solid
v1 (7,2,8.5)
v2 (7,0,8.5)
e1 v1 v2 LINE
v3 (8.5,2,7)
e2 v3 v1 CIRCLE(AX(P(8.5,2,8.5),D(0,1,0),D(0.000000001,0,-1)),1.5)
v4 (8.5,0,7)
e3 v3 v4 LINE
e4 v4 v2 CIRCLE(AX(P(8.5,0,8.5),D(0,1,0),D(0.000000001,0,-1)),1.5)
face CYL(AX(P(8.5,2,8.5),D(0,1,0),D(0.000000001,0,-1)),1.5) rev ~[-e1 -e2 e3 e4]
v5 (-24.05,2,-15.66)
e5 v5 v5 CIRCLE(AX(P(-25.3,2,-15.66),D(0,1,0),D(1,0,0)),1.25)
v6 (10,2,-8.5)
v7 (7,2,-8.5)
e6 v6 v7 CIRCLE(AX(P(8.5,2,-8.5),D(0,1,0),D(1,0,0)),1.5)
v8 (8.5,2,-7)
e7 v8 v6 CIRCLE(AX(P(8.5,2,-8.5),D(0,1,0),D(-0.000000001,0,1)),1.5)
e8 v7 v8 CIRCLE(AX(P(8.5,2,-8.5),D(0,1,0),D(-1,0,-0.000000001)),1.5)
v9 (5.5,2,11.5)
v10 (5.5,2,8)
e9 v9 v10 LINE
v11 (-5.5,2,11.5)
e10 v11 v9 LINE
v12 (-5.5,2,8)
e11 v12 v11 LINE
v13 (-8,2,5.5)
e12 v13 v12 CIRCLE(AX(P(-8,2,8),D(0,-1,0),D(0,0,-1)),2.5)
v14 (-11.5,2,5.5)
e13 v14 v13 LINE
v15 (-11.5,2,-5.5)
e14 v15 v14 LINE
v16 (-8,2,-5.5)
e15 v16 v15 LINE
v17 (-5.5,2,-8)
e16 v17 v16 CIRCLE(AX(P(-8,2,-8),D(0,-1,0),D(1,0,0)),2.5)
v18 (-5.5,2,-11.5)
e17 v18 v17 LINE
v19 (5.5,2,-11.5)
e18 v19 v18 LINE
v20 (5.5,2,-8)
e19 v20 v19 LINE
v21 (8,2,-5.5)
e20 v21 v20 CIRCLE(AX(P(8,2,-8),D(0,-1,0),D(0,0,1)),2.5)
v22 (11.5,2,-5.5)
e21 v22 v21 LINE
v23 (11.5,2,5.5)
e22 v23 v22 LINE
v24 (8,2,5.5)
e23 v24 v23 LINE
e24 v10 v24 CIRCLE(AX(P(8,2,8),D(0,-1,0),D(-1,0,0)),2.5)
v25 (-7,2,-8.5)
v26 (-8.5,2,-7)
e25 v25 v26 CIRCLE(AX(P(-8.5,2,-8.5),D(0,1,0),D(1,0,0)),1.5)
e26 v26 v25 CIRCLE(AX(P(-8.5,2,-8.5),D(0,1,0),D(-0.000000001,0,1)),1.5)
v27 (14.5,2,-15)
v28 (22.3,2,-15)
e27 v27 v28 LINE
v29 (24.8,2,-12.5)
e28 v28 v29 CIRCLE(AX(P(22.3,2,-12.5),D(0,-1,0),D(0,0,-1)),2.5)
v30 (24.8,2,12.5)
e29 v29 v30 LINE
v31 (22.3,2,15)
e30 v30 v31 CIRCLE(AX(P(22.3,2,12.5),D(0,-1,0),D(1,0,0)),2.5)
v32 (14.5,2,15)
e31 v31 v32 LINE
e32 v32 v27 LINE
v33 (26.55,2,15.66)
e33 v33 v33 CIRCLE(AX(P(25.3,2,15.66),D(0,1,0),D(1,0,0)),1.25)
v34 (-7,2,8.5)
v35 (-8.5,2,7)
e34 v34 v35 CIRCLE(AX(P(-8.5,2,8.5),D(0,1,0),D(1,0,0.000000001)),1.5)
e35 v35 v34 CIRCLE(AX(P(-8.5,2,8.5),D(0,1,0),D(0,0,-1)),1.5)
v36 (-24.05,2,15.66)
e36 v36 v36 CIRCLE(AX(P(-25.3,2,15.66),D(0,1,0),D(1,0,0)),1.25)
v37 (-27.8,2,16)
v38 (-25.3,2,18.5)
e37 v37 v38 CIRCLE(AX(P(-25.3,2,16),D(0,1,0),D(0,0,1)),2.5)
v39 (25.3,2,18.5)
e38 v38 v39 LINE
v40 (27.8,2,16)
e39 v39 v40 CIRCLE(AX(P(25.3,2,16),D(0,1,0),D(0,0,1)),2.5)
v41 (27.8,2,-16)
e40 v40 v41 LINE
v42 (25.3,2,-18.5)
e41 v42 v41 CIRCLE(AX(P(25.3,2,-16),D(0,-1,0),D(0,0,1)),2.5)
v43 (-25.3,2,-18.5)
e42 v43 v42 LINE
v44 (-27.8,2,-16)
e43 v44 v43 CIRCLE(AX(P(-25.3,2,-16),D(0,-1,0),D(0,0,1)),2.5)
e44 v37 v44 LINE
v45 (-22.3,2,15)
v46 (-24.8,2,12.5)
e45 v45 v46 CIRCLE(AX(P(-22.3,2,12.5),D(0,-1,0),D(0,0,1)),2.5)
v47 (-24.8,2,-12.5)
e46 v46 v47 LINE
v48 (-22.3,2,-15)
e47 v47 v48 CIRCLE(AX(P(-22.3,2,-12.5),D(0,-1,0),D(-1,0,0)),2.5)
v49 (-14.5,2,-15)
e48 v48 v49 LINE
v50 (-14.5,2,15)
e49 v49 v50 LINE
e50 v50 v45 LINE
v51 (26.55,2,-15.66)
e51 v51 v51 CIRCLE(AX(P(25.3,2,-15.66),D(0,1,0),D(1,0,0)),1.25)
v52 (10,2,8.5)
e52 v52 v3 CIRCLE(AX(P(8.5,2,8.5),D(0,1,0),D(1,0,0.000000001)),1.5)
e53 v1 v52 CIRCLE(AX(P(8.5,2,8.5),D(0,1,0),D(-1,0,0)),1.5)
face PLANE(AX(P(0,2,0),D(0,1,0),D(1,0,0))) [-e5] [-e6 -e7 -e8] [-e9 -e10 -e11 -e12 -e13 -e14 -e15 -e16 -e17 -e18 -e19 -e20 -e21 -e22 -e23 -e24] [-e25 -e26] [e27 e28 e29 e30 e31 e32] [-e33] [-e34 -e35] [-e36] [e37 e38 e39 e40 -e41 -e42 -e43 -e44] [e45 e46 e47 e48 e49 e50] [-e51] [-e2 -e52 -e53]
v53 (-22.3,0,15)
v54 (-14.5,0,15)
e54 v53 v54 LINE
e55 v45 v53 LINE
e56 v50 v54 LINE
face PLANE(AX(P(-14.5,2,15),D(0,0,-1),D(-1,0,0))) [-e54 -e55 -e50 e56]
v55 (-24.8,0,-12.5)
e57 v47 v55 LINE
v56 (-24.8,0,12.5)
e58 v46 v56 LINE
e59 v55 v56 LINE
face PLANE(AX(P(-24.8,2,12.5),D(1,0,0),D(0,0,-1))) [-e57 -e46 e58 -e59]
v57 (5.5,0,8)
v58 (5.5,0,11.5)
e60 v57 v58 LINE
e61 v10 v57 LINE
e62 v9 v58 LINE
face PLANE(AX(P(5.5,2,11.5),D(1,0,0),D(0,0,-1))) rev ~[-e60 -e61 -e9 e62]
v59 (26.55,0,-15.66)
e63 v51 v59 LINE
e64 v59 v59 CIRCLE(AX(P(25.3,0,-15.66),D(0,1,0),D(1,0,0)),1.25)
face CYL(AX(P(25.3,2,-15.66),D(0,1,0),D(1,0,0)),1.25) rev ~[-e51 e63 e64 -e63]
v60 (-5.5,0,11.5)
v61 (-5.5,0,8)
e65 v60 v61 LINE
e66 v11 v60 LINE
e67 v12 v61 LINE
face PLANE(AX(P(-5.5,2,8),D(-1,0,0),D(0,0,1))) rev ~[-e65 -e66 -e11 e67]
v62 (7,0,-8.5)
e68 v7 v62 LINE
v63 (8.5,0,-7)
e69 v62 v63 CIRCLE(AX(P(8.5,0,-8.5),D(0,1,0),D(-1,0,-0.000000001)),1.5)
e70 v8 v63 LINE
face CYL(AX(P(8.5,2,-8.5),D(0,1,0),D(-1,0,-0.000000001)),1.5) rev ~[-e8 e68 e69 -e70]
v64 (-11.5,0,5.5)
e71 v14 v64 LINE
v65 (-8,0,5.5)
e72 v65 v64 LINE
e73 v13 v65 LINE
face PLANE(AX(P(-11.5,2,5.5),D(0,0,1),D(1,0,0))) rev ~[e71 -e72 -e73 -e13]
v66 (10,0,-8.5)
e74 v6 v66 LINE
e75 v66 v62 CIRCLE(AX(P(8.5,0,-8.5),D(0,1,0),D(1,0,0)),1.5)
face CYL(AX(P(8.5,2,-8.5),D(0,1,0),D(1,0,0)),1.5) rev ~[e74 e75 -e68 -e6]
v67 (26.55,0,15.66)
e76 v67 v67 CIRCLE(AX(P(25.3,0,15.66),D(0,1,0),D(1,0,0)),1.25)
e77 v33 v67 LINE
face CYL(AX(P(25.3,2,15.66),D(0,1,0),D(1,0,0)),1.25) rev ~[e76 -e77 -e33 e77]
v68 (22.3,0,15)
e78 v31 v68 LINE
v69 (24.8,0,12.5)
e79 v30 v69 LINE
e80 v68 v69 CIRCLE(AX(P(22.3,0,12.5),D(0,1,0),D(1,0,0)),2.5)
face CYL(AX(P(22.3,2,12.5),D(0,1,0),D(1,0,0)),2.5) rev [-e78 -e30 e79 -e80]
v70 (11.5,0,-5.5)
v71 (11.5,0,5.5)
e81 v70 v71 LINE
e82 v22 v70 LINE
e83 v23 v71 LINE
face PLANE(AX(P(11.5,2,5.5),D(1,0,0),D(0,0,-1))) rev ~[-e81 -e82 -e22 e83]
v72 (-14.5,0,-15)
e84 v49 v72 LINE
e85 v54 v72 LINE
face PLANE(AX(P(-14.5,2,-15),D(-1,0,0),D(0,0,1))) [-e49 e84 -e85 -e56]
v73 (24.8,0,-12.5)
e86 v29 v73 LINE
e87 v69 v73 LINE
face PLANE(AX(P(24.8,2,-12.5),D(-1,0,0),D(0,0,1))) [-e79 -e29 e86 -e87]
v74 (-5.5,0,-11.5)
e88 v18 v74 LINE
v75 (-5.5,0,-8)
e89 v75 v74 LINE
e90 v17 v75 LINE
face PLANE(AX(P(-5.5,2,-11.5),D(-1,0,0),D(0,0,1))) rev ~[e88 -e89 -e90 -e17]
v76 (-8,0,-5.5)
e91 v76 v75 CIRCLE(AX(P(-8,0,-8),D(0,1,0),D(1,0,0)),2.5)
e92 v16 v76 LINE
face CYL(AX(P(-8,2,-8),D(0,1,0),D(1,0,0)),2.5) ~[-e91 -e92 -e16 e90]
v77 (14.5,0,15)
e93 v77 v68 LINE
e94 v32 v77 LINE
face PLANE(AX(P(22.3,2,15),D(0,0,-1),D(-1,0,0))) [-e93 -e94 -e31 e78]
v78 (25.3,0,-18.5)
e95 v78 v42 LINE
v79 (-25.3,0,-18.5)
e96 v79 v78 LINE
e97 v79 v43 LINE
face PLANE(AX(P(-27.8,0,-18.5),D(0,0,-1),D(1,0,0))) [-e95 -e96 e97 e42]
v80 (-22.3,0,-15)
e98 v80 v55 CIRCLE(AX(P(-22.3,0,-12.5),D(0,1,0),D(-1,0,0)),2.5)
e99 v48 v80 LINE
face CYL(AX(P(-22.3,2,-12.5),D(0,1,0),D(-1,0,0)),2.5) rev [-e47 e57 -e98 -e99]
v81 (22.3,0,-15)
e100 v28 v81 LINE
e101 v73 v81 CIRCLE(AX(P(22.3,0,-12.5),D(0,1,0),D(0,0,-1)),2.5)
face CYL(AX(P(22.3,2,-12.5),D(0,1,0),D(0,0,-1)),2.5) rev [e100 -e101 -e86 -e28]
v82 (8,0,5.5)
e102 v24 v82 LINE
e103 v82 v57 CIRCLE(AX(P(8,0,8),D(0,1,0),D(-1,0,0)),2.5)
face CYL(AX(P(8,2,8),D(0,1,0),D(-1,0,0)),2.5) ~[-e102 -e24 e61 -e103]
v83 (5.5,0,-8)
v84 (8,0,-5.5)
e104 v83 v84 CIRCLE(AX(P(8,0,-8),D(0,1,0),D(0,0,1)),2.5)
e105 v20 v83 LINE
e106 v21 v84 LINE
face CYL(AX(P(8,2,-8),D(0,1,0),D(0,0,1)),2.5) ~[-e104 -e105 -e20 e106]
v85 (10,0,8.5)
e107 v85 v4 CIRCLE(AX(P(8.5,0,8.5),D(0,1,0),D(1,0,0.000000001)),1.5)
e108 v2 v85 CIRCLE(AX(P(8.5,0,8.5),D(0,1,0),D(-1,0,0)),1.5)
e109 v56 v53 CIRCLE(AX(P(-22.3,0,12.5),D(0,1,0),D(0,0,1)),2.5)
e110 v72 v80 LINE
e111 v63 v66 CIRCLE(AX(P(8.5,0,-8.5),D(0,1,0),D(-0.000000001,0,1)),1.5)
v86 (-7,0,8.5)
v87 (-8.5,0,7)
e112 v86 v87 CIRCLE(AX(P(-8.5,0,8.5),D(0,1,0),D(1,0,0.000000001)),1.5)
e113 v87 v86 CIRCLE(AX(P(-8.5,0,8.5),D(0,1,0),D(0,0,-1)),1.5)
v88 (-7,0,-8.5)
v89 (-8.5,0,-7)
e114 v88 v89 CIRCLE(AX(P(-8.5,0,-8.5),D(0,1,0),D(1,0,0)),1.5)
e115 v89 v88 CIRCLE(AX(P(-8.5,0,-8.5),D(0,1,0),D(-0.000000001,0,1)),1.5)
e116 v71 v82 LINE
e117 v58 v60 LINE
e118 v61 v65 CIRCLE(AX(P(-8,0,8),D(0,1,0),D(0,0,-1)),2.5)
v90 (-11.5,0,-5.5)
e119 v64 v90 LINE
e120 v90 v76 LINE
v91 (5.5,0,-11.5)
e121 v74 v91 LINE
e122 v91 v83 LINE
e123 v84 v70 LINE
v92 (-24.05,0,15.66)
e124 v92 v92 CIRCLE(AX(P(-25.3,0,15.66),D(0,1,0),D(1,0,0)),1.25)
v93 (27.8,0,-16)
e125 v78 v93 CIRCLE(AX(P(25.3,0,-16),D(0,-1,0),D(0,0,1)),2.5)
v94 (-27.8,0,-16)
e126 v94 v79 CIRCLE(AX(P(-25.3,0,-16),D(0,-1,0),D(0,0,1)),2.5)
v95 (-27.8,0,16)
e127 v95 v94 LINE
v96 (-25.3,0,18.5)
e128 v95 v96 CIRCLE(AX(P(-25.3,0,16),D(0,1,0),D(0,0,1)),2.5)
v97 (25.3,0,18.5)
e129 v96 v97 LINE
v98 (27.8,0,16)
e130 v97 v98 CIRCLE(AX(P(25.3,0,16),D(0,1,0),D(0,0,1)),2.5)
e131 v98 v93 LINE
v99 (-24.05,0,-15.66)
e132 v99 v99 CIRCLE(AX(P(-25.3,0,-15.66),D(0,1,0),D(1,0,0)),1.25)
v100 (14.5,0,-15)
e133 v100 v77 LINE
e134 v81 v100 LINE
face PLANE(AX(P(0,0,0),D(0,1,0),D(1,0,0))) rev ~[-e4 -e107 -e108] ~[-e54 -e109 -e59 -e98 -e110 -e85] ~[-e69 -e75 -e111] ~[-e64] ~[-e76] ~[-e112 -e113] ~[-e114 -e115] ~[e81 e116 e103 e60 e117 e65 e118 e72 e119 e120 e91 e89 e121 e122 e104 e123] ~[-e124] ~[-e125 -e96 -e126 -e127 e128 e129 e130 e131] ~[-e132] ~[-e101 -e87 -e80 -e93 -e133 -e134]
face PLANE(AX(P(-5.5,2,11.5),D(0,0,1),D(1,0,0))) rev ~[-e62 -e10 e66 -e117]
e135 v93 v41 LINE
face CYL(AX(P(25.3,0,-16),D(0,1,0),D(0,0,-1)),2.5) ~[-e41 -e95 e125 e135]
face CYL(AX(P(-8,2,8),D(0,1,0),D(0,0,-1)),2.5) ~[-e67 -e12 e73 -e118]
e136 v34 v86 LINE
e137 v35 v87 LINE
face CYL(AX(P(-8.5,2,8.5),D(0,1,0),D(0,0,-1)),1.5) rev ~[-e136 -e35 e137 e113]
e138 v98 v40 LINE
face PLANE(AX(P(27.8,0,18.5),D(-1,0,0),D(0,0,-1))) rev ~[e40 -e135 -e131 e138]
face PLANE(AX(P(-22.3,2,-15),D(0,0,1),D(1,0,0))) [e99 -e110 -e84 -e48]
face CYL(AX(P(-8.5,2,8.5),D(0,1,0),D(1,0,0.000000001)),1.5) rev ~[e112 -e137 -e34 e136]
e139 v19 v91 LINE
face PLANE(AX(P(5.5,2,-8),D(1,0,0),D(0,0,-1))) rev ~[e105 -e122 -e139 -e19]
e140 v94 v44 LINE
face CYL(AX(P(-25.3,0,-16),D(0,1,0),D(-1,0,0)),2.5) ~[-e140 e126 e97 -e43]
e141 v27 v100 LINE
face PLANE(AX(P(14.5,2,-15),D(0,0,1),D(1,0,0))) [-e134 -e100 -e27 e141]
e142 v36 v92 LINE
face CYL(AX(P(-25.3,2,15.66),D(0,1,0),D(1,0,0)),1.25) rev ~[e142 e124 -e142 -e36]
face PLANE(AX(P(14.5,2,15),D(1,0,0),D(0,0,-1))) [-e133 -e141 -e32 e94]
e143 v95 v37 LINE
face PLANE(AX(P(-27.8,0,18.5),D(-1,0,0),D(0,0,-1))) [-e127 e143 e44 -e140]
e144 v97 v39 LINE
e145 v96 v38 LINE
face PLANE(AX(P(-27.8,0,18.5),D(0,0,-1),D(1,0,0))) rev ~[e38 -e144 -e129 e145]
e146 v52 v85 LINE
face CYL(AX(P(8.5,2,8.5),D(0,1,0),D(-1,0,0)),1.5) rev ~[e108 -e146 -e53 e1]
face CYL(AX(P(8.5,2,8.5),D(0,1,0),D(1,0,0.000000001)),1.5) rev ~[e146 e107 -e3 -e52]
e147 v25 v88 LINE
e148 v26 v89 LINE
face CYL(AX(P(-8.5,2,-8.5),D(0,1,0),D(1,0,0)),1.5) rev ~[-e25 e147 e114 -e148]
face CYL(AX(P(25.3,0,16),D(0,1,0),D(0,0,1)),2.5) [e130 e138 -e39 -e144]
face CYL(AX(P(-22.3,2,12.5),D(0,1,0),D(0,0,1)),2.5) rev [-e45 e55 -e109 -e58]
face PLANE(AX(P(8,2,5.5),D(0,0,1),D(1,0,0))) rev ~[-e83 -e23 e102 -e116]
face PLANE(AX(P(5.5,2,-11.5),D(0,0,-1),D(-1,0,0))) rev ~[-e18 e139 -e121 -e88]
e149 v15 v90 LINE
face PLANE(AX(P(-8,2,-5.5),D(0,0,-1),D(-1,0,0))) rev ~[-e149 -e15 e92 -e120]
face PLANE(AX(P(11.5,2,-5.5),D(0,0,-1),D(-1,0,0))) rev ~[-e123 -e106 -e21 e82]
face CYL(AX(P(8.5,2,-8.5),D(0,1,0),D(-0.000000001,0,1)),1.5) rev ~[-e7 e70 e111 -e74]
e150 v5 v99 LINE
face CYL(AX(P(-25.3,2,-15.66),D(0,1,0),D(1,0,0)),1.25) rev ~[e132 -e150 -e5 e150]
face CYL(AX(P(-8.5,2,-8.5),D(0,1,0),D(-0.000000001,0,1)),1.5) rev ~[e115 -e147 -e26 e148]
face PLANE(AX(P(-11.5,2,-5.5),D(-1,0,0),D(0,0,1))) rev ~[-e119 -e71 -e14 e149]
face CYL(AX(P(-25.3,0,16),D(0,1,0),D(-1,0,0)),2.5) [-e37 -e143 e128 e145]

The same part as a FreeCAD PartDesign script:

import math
import FreeCAD as App
import Part
import Sketcher


def edges_at(feature, points):
    """Names of the edges that pass closest to the given points."""
    edges = feature.Shape.Edges
    near = lambda p: min(range(len(edges)), key=lambda i: edges[i].distToShape(Part.Vertex(*p))[0])
    return sorted({f"Edge{near(p) + 1}" for p in points})


def add_polygon(sketch, points):
    """Adds a closed chain of lines whose ends are joined by coincident constraints."""
    first, n = sketch.GeometryCount, len(points)
    for a, b in zip(points, points[1:] + points[:1]):
        sketch.addGeometry(Part.LineSegment(App.Vector(*a, 0), App.Vector(*b, 0)), False)
    for i in range(n):
        sketch.addConstraint(Sketcher.Constraint("Coincident", first + i, 2, first + (i + 1) % n, 1))

doc = App.newDocument("Part")
body = doc.addObject("PartDesign::Body", "Body")

# Sketch on XZ plane
sketch1 = doc.addObject("Sketcher::SketchObject", "Sketch")
body.addObject(sketch1)
sketch1.AttachmentSupport = (doc.XZ_Plane, [""])
sketch1.MapMode = "FlatFace"
add_polygon(sketch1, [(-27.8, -18.5), (-27.8, 18.5), (27.8, 18.5), (27.8, -18.5)])  # lines 0-3
sketch1.addConstraint(Sketcher.Constraint("Vertical", 0))
sketch1.addConstraint(Sketcher.Constraint("Horizontal", 1))
sketch1.addConstraint(Sketcher.Constraint("Vertical", 2))
sketch1.addConstraint(Sketcher.Constraint("Horizontal", 3))
sketch1.addConstraint(Sketcher.Constraint("Symmetric", 0, 2, 2, 2, -1, 1))
sketch1.addConstraint(Sketcher.Constraint("DistanceY", 0, 1, 0, 2, 37.0))
sketch1.addConstraint(Sketcher.Constraint("DistanceX", 1, 1, 1, 2, 55.6))
pad1 = doc.addObject("PartDesign::Pad", "Pad")
body.addObject(pad1)
pad1.Profile = sketch1
pad1.Length = 2
pad1.Reversed = True

# Sketch on XZ plane
sketch2 = doc.addObject("Sketcher::SketchObject", "Sketch001")
body.addObject(sketch2)
sketch2.AttachmentSupport = (doc.XZ_Plane, [""])
sketch2.MapMode = "FlatFace"
sketch2.AttachmentOffset = App.Placement(App.Vector(0, 0, -2), App.Rotation())
sketch2.addGeometry(Part.LineSegment(App.Vector(5.5, -11.5, 0), App.Vector(-5.5, -11.5, 0)), False)
sketch2.addGeometry(Part.LineSegment(App.Vector(-5.5, -11.5, 0), App.Vector(-5.5, -8, 0)), False)
sketch2.addGeometry(Part.ArcOfCircle(Part.Circle(App.Vector(-8, -8, 0), App.Vector(0, 0, 1), 2.5), math.radians(0), math.radians(90)), False)
sketch2.addGeometry(Part.LineSegment(App.Vector(-8, -5.5, 0), App.Vector(-11.5, -5.5, 0)), False)
sketch2.addGeometry(Part.LineSegment(App.Vector(-11.5, -5.5, 0), App.Vector(-11.5, 5.5, 0)), False)
sketch2.addGeometry(Part.LineSegment(App.Vector(-11.5, 5.5, 0), App.Vector(-8, 5.5, 0)), False)
sketch2.addGeometry(Part.ArcOfCircle(Part.Circle(App.Vector(-8, 8, 0), App.Vector(0, 0, 1), 2.5), math.radians(-90), math.radians(0)), False)
sketch2.addGeometry(Part.LineSegment(App.Vector(-5.5, 8, 0), App.Vector(-5.5, 11.5, 0)), False)
sketch2.addGeometry(Part.LineSegment(App.Vector(-5.5, 11.5, 0), App.Vector(5.5, 11.5, 0)), False)
sketch2.addGeometry(Part.LineSegment(App.Vector(5.5, 11.5, 0), App.Vector(5.5, 8, 0)), False)
sketch2.addGeometry(Part.ArcOfCircle(Part.Circle(App.Vector(8, 8, 0), App.Vector(0, 0, 1), 2.5), math.radians(180), math.radians(270)), False)
sketch2.addGeometry(Part.LineSegment(App.Vector(8, 5.5, 0), App.Vector(11.5, 5.5, 0)), False)
sketch2.addGeometry(Part.LineSegment(App.Vector(11.5, 5.5, 0), App.Vector(11.5, -5.5, 0)), False)
sketch2.addGeometry(Part.LineSegment(App.Vector(11.5, -5.5, 0), App.Vector(8, -5.5, 0)), False)
sketch2.addGeometry(Part.ArcOfCircle(Part.Circle(App.Vector(8, -8, 0), App.Vector(0, 0, 1), 2.5), math.radians(90), math.radians(180)), False)
sketch2.addGeometry(Part.LineSegment(App.Vector(5.5, -8, 0), App.Vector(5.5, -11.5, 0)), False)
sketch2.addConstraint(Sketcher.Constraint("Coincident", 0, 2, 1, 1))
sketch2.addConstraint(Sketcher.Constraint("Tangent", 1, 2, 2, 1))
sketch2.addConstraint(Sketcher.Constraint("Tangent", 2, 2, 3, 1))
sketch2.addConstraint(Sketcher.Constraint("Coincident", 3, 2, 4, 1))
sketch2.addConstraint(Sketcher.Constraint("Coincident", 4, 2, 5, 1))
sketch2.addConstraint(Sketcher.Constraint("Tangent", 5, 2, 6, 1))
sketch2.addConstraint(Sketcher.Constraint("Tangent", 6, 2, 7, 1))
sketch2.addConstraint(Sketcher.Constraint("Coincident", 7, 2, 8, 1))
sketch2.addConstraint(Sketcher.Constraint("Coincident", 8, 2, 9, 1))
sketch2.addConstraint(Sketcher.Constraint("Tangent", 9, 2, 10, 1))
sketch2.addConstraint(Sketcher.Constraint("Tangent", 10, 2, 11, 1))
sketch2.addConstraint(Sketcher.Constraint("Coincident", 11, 2, 12, 1))
sketch2.addConstraint(Sketcher.Constraint("Coincident", 12, 2, 13, 1))
sketch2.addConstraint(Sketcher.Constraint("Tangent", 13, 2, 14, 1))
sketch2.addConstraint(Sketcher.Constraint("Tangent", 14, 2, 15, 1))
sketch2.addConstraint(Sketcher.Constraint("Coincident", 15, 2, 0, 1))
sketch2.addConstraint(Sketcher.Constraint("Horizontal", 0))
sketch2.addConstraint(Sketcher.Constraint("Vertical", 1))
sketch2.addConstraint(Sketcher.Constraint("Horizontal", 3))
sketch2.addConstraint(Sketcher.Constraint("Vertical", 4))
sketch2.addConstraint(Sketcher.Constraint("Horizontal", 5))
sketch2.addConstraint(Sketcher.Constraint("Vertical", 7))
sketch2.addConstraint(Sketcher.Constraint("Horizontal", 8))
sketch2.addConstraint(Sketcher.Constraint("Vertical", 9))
sketch2.addConstraint(Sketcher.Constraint("Horizontal", 11))
sketch2.addConstraint(Sketcher.Constraint("Vertical", 12))
sketch2.addConstraint(Sketcher.Constraint("Horizontal", 13))
sketch2.addConstraint(Sketcher.Constraint("Vertical", 15))
sketch2.addConstraint(Sketcher.Constraint("Equal", 2, 6))
sketch2.addConstraint(Sketcher.Constraint("Equal", 6, 10))
sketch2.addConstraint(Sketcher.Constraint("Equal", 10, 14))
sketch2.addConstraint(Sketcher.Constraint("Symmetric", 2, 3, 10, 3, -1, 1))
sketch2.addConstraint(Sketcher.Constraint("Symmetric", 6, 3, 14, 3, -1, 1))
sketch2.addConstraint(Sketcher.Constraint("Symmetric", 6, 3, 10, 3, -2))
sketch2.addConstraint(Sketcher.Constraint("Equal", 5, 11))
sketch2.addConstraint(Sketcher.Constraint("Equal", 13, 1))
sketch2.addConstraint(Sketcher.Constraint("Equal", 8, 4))
sketch2.addConstraint(Sketcher.Constraint("Equal", 1, 7))
sketch2.addConstraint(Sketcher.Constraint("Radius", 2, 2.5))
sketch2.addConstraint(Sketcher.Constraint("DistanceX", 0, 2, 0, 1, 11.0))
sketch2.addConstraint(Sketcher.Constraint("DistanceX", 3, 2, 3, 1, 3.5))
pocket1 = doc.addObject("PartDesign::Pocket", "Pocket")
body.addObject(pocket1)
pocket1.Profile = sketch2
pocket1.Type = "UpToFirst"
pocket1.Reversed = True
doc.recompute()

fillet = doc.addObject("PartDesign::Fillet", "Fillet")
body.addObject(fillet)
fillet.Base = (pocket1, edges_at(pocket1, [
    (27.8, 1, 18.5),
    (-27.8, 1, 18.5),
    (-27.8, 1, -18.5),
    (27.8, 1, -18.5),
]))
fillet.Radius = 2.5

# Sketch on XZ plane
sketch3 = doc.addObject("Sketcher::SketchObject", "Sketch002")
body.addObject(sketch3)
sketch3.AttachmentSupport = (doc.XZ_Plane, [""])
sketch3.MapMode = "FlatFace"
sketch3.AttachmentOffset = App.Placement(App.Vector(0, 0, -2), App.Rotation())
sketch3.addGeometry(Part.LineSegment(App.Vector(-14.5, -15, 0), App.Vector(-22.3, -15, 0)), False)
sketch3.addGeometry(Part.ArcOfCircle(Part.Circle(App.Vector(-22.3, -12.5, 0), App.Vector(0, 0, 1), 2.5), math.radians(180), math.radians(270)), False)
sketch3.addGeometry(Part.LineSegment(App.Vector(-24.8, -12.5, 0), App.Vector(-24.8, 12.5, 0)), False)
sketch3.addGeometry(Part.ArcOfCircle(Part.Circle(App.Vector(-22.3, 12.5, 0), App.Vector(0, 0, 1), 2.5), math.radians(90), math.radians(180)), False)
sketch3.addGeometry(Part.LineSegment(App.Vector(-22.3, 15, 0), App.Vector(-14.5, 15, 0)), False)
sketch3.addGeometry(Part.LineSegment(App.Vector(-14.5, 15, 0), App.Vector(-14.5, -15, 0)), False)
sketch3.addConstraint(Sketcher.Constraint("Tangent", 0, 2, 1, 2))
sketch3.addConstraint(Sketcher.Constraint("Tangent", 1, 1, 2, 1))
sketch3.addConstraint(Sketcher.Constraint("Tangent", 2, 2, 3, 2))
sketch3.addConstraint(Sketcher.Constraint("Tangent", 3, 1, 4, 1))
sketch3.addConstraint(Sketcher.Constraint("Coincident", 4, 2, 5, 1))
sketch3.addConstraint(Sketcher.Constraint("Coincident", 5, 2, 0, 1))
sketch3.addConstraint(Sketcher.Constraint("Horizontal", 0))
sketch3.addConstraint(Sketcher.Constraint("Vertical", 2))
sketch3.addConstraint(Sketcher.Constraint("Horizontal", 4))
sketch3.addConstraint(Sketcher.Constraint("Vertical", 5))
sketch3.addConstraint(Sketcher.Constraint("Equal", 1, 3))
sketch3.addConstraint(Sketcher.Constraint("Radius", 1, 2.5))
sketch3.addConstraint(Sketcher.Constraint("DistanceY", 2, 1, 2, 2, 25.0))
sketch3.addConstraint(Sketcher.Constraint("DistanceX", 0, 2, 0, 1, 7.8))
sketch3.addConstraint(Sketcher.Constraint("DistanceY", 0, 2, -1, 1, 15.0))
sketch3.addConstraint(Sketcher.Constraint("DistanceX", 1, 3, -1, 1, 22.3))
pocket2 = doc.addObject("PartDesign::Pocket", "Pocket001")
body.addObject(pocket2)
pocket2.Profile = sketch3
pocket2.Type = "UpToFirst"
pocket2.Reversed = True

# Sketch on XZ plane
sketch4 = doc.addObject("Sketcher::SketchObject", "Sketch003")
body.addObject(sketch4)
sketch4.AttachmentSupport = (doc.XZ_Plane, [""])
sketch4.MapMode = "FlatFace"
sketch4.AttachmentOffset = App.Placement(App.Vector(0, 0, -2), App.Rotation())
sketch4.addGeometry(Part.LineSegment(App.Vector(14.5, 15, 0), App.Vector(22.3, 15, 0)), False)
sketch4.addGeometry(Part.ArcOfCircle(Part.Circle(App.Vector(22.3, 12.5, 0), App.Vector(0, 0, 1), 2.5), math.radians(0), math.radians(90)), False)
sketch4.addGeometry(Part.LineSegment(App.Vector(24.8, 12.5, 0), App.Vector(24.8, -12.5, 0)), False)
sketch4.addGeometry(Part.ArcOfCircle(Part.Circle(App.Vector(22.3, -12.5, 0), App.Vector(0, 0, 1), 2.5), math.radians(-90), math.radians(0)), False)
sketch4.addGeometry(Part.LineSegment(App.Vector(22.3, -15, 0), App.Vector(14.5, -15, 0)), False)
sketch4.addGeometry(Part.LineSegment(App.Vector(14.5, -15, 0), App.Vector(14.5, 15, 0)), False)
sketch4.addConstraint(Sketcher.Constraint("Tangent", 0, 2, 1, 2))
sketch4.addConstraint(Sketcher.Constraint("Tangent", 1, 1, 2, 1))
sketch4.addConstraint(Sketcher.Constraint("Tangent", 2, 2, 3, 2))
sketch4.addConstraint(Sketcher.Constraint("Tangent", 3, 1, 4, 1))
sketch4.addConstraint(Sketcher.Constraint("Coincident", 4, 2, 5, 1))
sketch4.addConstraint(Sketcher.Constraint("Coincident", 5, 2, 0, 1))
sketch4.addConstraint(Sketcher.Constraint("Horizontal", 0))
sketch4.addConstraint(Sketcher.Constraint("Vertical", 2))
sketch4.addConstraint(Sketcher.Constraint("Horizontal", 4))
sketch4.addConstraint(Sketcher.Constraint("Vertical", 5))
sketch4.addConstraint(Sketcher.Constraint("Equal", 1, 3))
sketch4.addConstraint(Sketcher.Constraint("Radius", 1, 2.5))
sketch4.addConstraint(Sketcher.Constraint("DistanceY", 2, 2, 2, 1, 25.0))
sketch4.addConstraint(Sketcher.Constraint("DistanceX", 0, 1, 0, 2, 7.8))
sketch4.addConstraint(Sketcher.Constraint("DistanceY", -1, 1, 0, 2, 15.0))
sketch4.addConstraint(Sketcher.Constraint("DistanceX", -1, 1, 1, 3, 22.3))
pocket3 = doc.addObject("PartDesign::Pocket", "Pocket002")
body.addObject(pocket3)
pocket3.Profile = sketch4
pocket3.Type = "UpToFirst"
pocket3.Reversed = True

# Sketch on XZ plane
sketch5 = doc.addObject("Sketcher::SketchObject", "Sketch004")
body.addObject(sketch5)
sketch5.AttachmentSupport = (doc.XZ_Plane, [""])
sketch5.MapMode = "FlatFace"
sketch5.AttachmentOffset = App.Placement(App.Vector(0, 0, -2), App.Rotation())
sketch5.addGeometry(Part.Circle(App.Vector(-25.3, -15.66, 0), App.Vector(0, 0, 1), 1.25), False)
sketch5.addConstraint(Sketcher.Constraint("Diameter", 0, 2.5))
sketch5.addConstraint(Sketcher.Constraint("DistanceX", 0, 3, -1, 1, 25.3))
sketch5.addConstraint(Sketcher.Constraint("DistanceY", 0, 3, -1, 1, 15.66))
pocket4 = doc.addObject("PartDesign::Pocket", "Pocket003")
body.addObject(pocket4)
pocket4.Profile = sketch5
pocket4.Type = "UpToFirst"
pocket4.Reversed = True

# Sketch on XZ plane
sketch6 = doc.addObject("Sketcher::SketchObject", "Sketch005")
body.addObject(sketch6)
sketch6.AttachmentSupport = (doc.XZ_Plane, [""])
sketch6.MapMode = "FlatFace"
sketch6.AttachmentOffset = App.Placement(App.Vector(0, 0, -2), App.Rotation())
sketch6.addGeometry(Part.Circle(App.Vector(25.3, -15.66, 0), App.Vector(0, 0, 1), 1.25), False)
sketch6.addConstraint(Sketcher.Constraint("Diameter", 0, 2.5))
sketch6.addConstraint(Sketcher.Constraint("DistanceX", -1, 1, 0, 3, 25.3))
sketch6.addConstraint(Sketcher.Constraint("DistanceY", 0, 3, -1, 1, 15.66))
pocket5 = doc.addObject("PartDesign::Pocket", "Pocket004")
body.addObject(pocket5)
pocket5.Profile = sketch6
pocket5.Type = "UpToFirst"
pocket5.Reversed = True

# Sketch on XZ plane
sketch7 = doc.addObject("Sketcher::SketchObject", "Sketch006")
body.addObject(sketch7)
sketch7.AttachmentSupport = (doc.XZ_Plane, [""])
sketch7.MapMode = "FlatFace"
sketch7.AttachmentOffset = App.Placement(App.Vector(0, 0, -2), App.Rotation())
sketch7.addGeometry(Part.Circle(App.Vector(25.3, 15.66, 0), App.Vector(0, 0, 1), 1.25), False)
sketch7.addConstraint(Sketcher.Constraint("Diameter", 0, 2.5))
sketch7.addConstraint(Sketcher.Constraint("DistanceX", -1, 1, 0, 3, 25.3))
sketch7.addConstraint(Sketcher.Constraint("DistanceY", -1, 1, 0, 3, 15.66))
pocket6 = doc.addObject("PartDesign::Pocket", "Pocket005")
body.addObject(pocket6)
pocket6.Profile = sketch7
pocket6.Type = "UpToFirst"
pocket6.Reversed = True

# Sketch on XZ plane
sketch8 = doc.addObject("Sketcher::SketchObject", "Sketch007")
body.addObject(sketch8)
sketch8.AttachmentSupport = (doc.XZ_Plane, [""])
sketch8.MapMode = "FlatFace"
sketch8.AttachmentOffset = App.Placement(App.Vector(0, 0, -2), App.Rotation())
sketch8.addGeometry(Part.Circle(App.Vector(-25.3, 15.66, 0), App.Vector(0, 0, 1), 1.25), False)
sketch8.addConstraint(Sketcher.Constraint("Diameter", 0, 2.5))
sketch8.addConstraint(Sketcher.Constraint("DistanceX", 0, 3, -1, 1, 25.3))
sketch8.addConstraint(Sketcher.Constraint("DistanceY", -1, 1, 0, 3, 15.66))
pocket7 = doc.addObject("PartDesign::Pocket", "Pocket006")
body.addObject(pocket7)
pocket7.Profile = sketch8
pocket7.Type = "UpToFirst"
pocket7.Reversed = True

# Sketch on XZ plane
sketch9 = doc.addObject("Sketcher::SketchObject", "Sketch008")
body.addObject(sketch9)
sketch9.AttachmentSupport = (doc.XZ_Plane, [""])
sketch9.MapMode = "FlatFace"
sketch9.AttachmentOffset = App.Placement(App.Vector(0, 0, -2), App.Rotation())
sketch9.addGeometry(Part.ArcOfCircle(Part.Circle(App.Vector(-8.5, -8.5, 0), App.Vector(0, 0, 1), 1.5), math.radians(90), math.radians(360)), False)
sketch9.addGeometry(Part.ArcOfCircle(Part.Circle(App.Vector(-8.5, -8.5, 0), App.Vector(0, 0, 1), 1.5), math.radians(0), math.radians(90)), False)
sketch9.addGeometry(Part.ArcOfCircle(Part.Circle(App.Vector(8.5, -8.5, 0), App.Vector(0, 0, 1), 1.5), math.radians(180), math.radians(360)), False)
sketch9.addGeometry(Part.ArcOfCircle(Part.Circle(App.Vector(8.5, -8.5, 0), App.Vector(0, 0, 1), 1.5), math.radians(90), math.radians(180)), False)
sketch9.addGeometry(Part.ArcOfCircle(Part.Circle(App.Vector(8.5, -8.5, 0), App.Vector(0, 0, 1), 1.5), math.radians(0), math.radians(90)), False)
sketch9.addGeometry(Part.ArcOfCircle(Part.Circle(App.Vector(-8.5, 8.5, 0), App.Vector(0, 0, 1), 1.5), math.radians(-90), math.radians(0)), False)
sketch9.addGeometry(Part.ArcOfCircle(Part.Circle(App.Vector(-8.5, 8.5, 0), App.Vector(0, 0, 1), 1.5), math.radians(0), math.radians(270)), False)
sketch9.addGeometry(Part.ArcOfCircle(Part.Circle(App.Vector(8.5, 8.5, 0), App.Vector(0, 0, 1), 1.5), math.radians(-90), math.radians(0)), False)
sketch9.addGeometry(Part.ArcOfCircle(Part.Circle(App.Vector(8.5, 8.5, 0), App.Vector(0, 0, 1), 1.5), math.radians(180), math.radians(270)), False)
sketch9.addGeometry(Part.ArcOfCircle(Part.Circle(App.Vector(8.5, 8.5, 0), App.Vector(0, 0, 1), 1.5), math.radians(0), math.radians(180)), False)
sketch9.addConstraint(Sketcher.Constraint("Tangent", 0, 1, 1, 2))
sketch9.addConstraint(Sketcher.Constraint("Coincident", 1, 1, 0, 2))
sketch9.addConstraint(Sketcher.Constraint("Tangent", 2, 1, 3, 2))
sketch9.addConstraint(Sketcher.Constraint("Tangent", 3, 1, 4, 2))
sketch9.addConstraint(Sketcher.Constraint("Tangent", 4, 1, 2, 2))
sketch9.addConstraint(Sketcher.Constraint("Tangent", 5, 1, 6, 2))
sketch9.addConstraint(Sketcher.Constraint("Coincident", 6, 1, 5, 2))
sketch9.addConstraint(Sketcher.Constraint("Tangent", 7, 1, 8, 2))
sketch9.addConstraint(Sketcher.Constraint("Tangent", 8, 1, 9, 2))
sketch9.addConstraint(Sketcher.Constraint("Tangent", 9, 1, 7, 2))
sketch9.addConstraint(Sketcher.Constraint("Equal", 1, 2))
sketch9.addConstraint(Sketcher.Constraint("Equal", 4, 5))
sketch9.addConstraint(Sketcher.Constraint("Equal", 6, 7))
sketch9.addConstraint(Sketcher.Constraint("Symmetric", 2, 3, 5, 3, -1, 1))
sketch9.addConstraint(Sketcher.Constraint("Symmetric", 0, 3, 7, 3, -1, 1))
sketch9.addConstraint(Sketcher.Constraint("Symmetric", 0, 3, 2, 3, -2))
sketch9.addConstraint(Sketcher.Constraint("Horizontal", 4, 3, 1, 1))
sketch9.addConstraint(Sketcher.Constraint("Horizontal", 1, 1, 2, 1))
sketch9.addConstraint(Sketcher.Constraint("Horizontal", 2, 1, 4, 1))
sketch9.addConstraint(Sketcher.Constraint("Horizontal", 9, 3, 6, 1))
sketch9.addConstraint(Sketcher.Constraint("Horizontal", 6, 1, 8, 1))
sketch9.addConstraint(Sketcher.Constraint("Horizontal", 8, 1, 9, 1))
sketch9.addConstraint(Sketcher.Constraint("Vertical", 6, 3, 0, 1))
sketch9.addConstraint(Sketcher.Constraint("Vertical", 9, 3, 3, 1))
sketch9.addConstraint(Sketcher.Constraint("Vertical", 0, 1, 5, 1))
sketch9.addConstraint(Sketcher.Constraint("Vertical", 3, 1, 7, 1))
sketch9.addConstraint(Sketcher.Constraint("Radius", 0, 1.5))
sketch9.addConstraint(Sketcher.Constraint("DistanceY", 0, 1, -1, 1, 7.0))
sketch9.addConstraint(Sketcher.Constraint("DistanceX", 1, 1, -1, 1, 7.0))
pocket8 = doc.addObject("PartDesign::Pocket", "Pocket007")
body.addObject(pocket8)
pocket8.Profile = sketch9
pocket8.Length = 10
pocket8.Reversed = True

doc.recompute()
